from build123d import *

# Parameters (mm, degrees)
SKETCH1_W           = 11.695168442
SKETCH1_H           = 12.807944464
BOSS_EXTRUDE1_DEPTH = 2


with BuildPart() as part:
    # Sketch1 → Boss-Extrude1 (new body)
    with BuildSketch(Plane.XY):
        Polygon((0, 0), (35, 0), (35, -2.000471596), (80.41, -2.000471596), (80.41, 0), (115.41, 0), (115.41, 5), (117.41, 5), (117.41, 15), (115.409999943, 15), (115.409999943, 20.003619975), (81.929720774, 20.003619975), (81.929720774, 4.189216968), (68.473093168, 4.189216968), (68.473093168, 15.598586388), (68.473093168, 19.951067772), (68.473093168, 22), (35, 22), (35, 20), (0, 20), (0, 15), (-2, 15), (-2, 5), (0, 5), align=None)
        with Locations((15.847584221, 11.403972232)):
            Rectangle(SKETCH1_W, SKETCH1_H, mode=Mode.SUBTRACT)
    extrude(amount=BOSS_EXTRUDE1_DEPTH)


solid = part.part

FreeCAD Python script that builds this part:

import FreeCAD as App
import Part
import Sketcher
Q = App.Units.Quantity

doc = App.newDocument("Part")
params = doc.addObject("Spreadsheet::Sheet", "Params")
for row, (alias, value) in enumerate([
    ("sketch1_width", "35 mm"),
    ("sketch1_width2", "2 mm"),
    ("sketch1_height", "5 mm"),
    ("sketch1_height2", "10 mm"),
    ("sketch1_width3", "45.41 mm"),
    ("pad1_length", "2 mm"),
], start=1):
    params.set(f"A{row}", alias)
    params.set(f"B{row}", "=" + value)
    params.setAlias(f"B{row}", alias)

body = doc.addObject("PartDesign::Body", "Body")

sketch1 = body.newObject("Sketcher::SketchObject", "Sketch")
sketch1.AttachmentSupport = (doc.getObject("XY_Plane"), [""])
sketch1.MapMode = "FlatFace"
sketch1.addGeometry([
    Part.LineSegment(App.Vector(0, 0, 0), App.Vector(35, 0, 0)),
    Part.LineSegment(App.Vector(35, 0, 0), App.Vector(35, -2, 0)),
    Part.LineSegment(App.Vector(35, -2, 0), App.Vector(80.4, -2, 0)),
    Part.LineSegment(App.Vector(80.4, -2, 0), App.Vector(80.4, 0, 0)),
    Part.LineSegment(App.Vector(80.4, 0, 0), App.Vector(115.4, 0, 0)),
    Part.LineSegment(App.Vector(115.4, 0, 0), App.Vector(115.4, 5, 0)),
    Part.LineSegment(App.Vector(115.4, 5, 0), App.Vector(117.4, 5, 0)),
    Part.LineSegment(App.Vector(117.4, 5, 0), App.Vector(117.4, 15, 0)),
    Part.LineSegment(App.Vector(117.4, 15, 0), App.Vector(115.4, 15, 0)),
    Part.LineSegment(App.Vector(115.4, 15, 0), App.Vector(115.4, 20, 0)),
    Part.LineSegment(App.Vector(115.4, 20, 0), App.Vector(81.9, 20, 0)),
    Part.LineSegment(App.Vector(81.9, 20, 0), App.Vector(81.9, 4.2, 0)),
    Part.LineSegment(App.Vector(81.9, 4.2, 0), App.Vector(68.5, 4.2, 0)),
    Part.LineSegment(App.Vector(68.5, 4.2, 0), App.Vector(68.5, 22, 0)),
    Part.LineSegment(App.Vector(68.5, 22, 0), App.Vector(35, 22, 0)),
    Part.LineSegment(App.Vector(35, 22, 0), App.Vector(35, 20, 0)),
    Part.LineSegment(App.Vector(35, 20, 0), App.Vector(0, 20, 0)),
    Part.LineSegment(App.Vector(0, 20, 0), App.Vector(0, 15, 0)),
    Part.LineSegment(App.Vector(0, 15, 0), App.Vector(-2, 15, 0)),
    Part.LineSegment(App.Vector(-2, 15, 0), App.Vector(-2, 5, 0)),
    Part.LineSegment(App.Vector(-2, 5, 0), App.Vector(0, 5, 0)),
    Part.LineSegment(App.Vector(0, 5, 0), App.Vector(0, 0, 0)),
    Part.LineSegment(App.Vector(21.7, 5, 0), App.Vector(10, 5, 0)),
    Part.LineSegment(App.Vector(10, 5, 0), App.Vector(10, 17.8, 0)),
    Part.LineSegment(App.Vector(10, 17.8, 0), App.Vector(21.7, 17.8, 0)),
    Part.LineSegment(App.Vector(21.7, 17.8, 0), App.Vector(21.7, 5, 0)),
], False)
sketch1.addConstraint([
    Sketcher.Constraint("Coincident", 0, 2, 1, 1),
    Sketcher.Constraint("Coincident", 1, 2, 2, 1),
    Sketcher.Constraint("Coincident", 2, 2, 3, 1),
    Sketcher.Constraint("Coincident", 3, 2, 4, 1),
    Sketcher.Constraint("Coincident", 4, 2, 5, 1),
    Sketcher.Constraint("Coincident", 5, 2, 6, 1),
    Sketcher.Constraint("Coincident", 6, 2, 7, 1),
    Sketcher.Constraint("Coincident", 7, 2, 8, 1),
    Sketcher.Constraint("Coincident", 8, 2, 9, 1),
    Sketcher.Constraint("Coincident", 9, 2, 10, 1),
    Sketcher.Constraint("Coincident", 10, 2, 11, 1),
    Sketcher.Constraint("Coincident", 11, 2, 12, 1),
    Sketcher.Constraint("Coincident", 12, 2, 13, 1),
    Sketcher.Constraint("Coincident", 13, 2, 14, 1),
    Sketcher.Constraint("Coincident", 14, 2, 15, 1),
    Sketcher.Constraint("Coincident", 15, 2, 16, 1),
    Sketcher.Constraint("Coincident", 16, 2, 17, 1),
    Sketcher.Constraint("Coincident", 17, 2, 18, 1),
    Sketcher.Constraint("Coincident", 18, 2, 19, 1),
    Sketcher.Constraint("Coincident", 19, 2, 20, 1),
    Sketcher.Constraint("Coincident", 20, 2, 21, 1),
    Sketcher.Constraint("Coincident", 21, 2, 0, 1),
    Sketcher.Constraint("Coincident", 22, 2, 23, 1),
    Sketcher.Constraint("Coincident", 23, 2, 24, 1),
    Sketcher.Constraint("Coincident", 24, 2, 25, 1),
    Sketcher.Constraint("Coincident", 25, 2, 22, 1),
    Sketcher.Constraint("Horizontal", 0),
    Sketcher.Constraint("Vertical", 1),
    Sketcher.Constraint("Horizontal", 2),
    Sketcher.Constraint("Vertical", 3),
    Sketcher.Constraint("Horizontal", 4),
    Sketcher.Constraint("Vertical", 5),
    Sketcher.Constraint("Horizontal", 6),
    Sketcher.Constraint("Vertical", 7),
    Sketcher.Constraint("Horizontal", 8),
    Sketcher.Constraint("Vertical", 9),
    Sketcher.Constraint("Horizontal", 10),
    Sketcher.Constraint("Vertical", 11),
    Sketcher.Constraint("Horizontal", 12),
    Sketcher.Constraint("Vertical", 13),
    Sketcher.Constraint("Horizontal", 14),
    Sketcher.Constraint("Vertical", 15),
    Sketcher.Constraint("Horizontal", 16),
    Sketcher.Constraint("Vertical", 17),
    Sketcher.Constraint("Horizontal", 18),
    Sketcher.Constraint("Vertical", 19),
    Sketcher.Constraint("Horizontal", 20),
    Sketcher.Constraint("Vertical", 21),
    Sketcher.Constraint("Horizontal", 22),
    Sketcher.Constraint("Vertical", 23),
    Sketcher.Constraint("Horizontal", 24),
    Sketcher.Constraint("Vertical", 25),
    Sketcher.Constraint("Coincident", 21, 2, -1, 1),
    Sketcher.Constraint("PointOnObject", 3, 2, -1),
    Sketcher.Constraint("PointOnObject", 16, 2, -2),
    Sketcher.Constraint("Horizontal", 8, 2, 17, 2),
    Sketcher.Constraint("Horizontal", 6, 2, 19, 2),
    Sketcher.Constraint("Horizontal", 20, 2, 22, 2),
    Sketcher.Constraint("Vertical", 5, 2, 8, 2),
    Sketcher.Constraint("Vertical", 1, 2, 14, 2),
    Sketcher.Constraint("Equal", 0, 4),
    Sketcher.Constraint("Equal", 8, 18),
    Sketcher.Constraint("Equal", 20, 15),
    Sketcher.Constraint("Equal", 5, 17),
    Sketcher.Constraint("DistanceX", 0, 1, 0, 2, Q("35 mm")),
    Sketcher.Constraint("DistanceX", 6, 1, 6, 2, Q("2 mm")),
    Sketcher.Constraint("DistanceY", 5, 1, 5, 2, Q("5 mm")),
    Sketcher.Constraint("DistanceY", 7, 1, 7, 2, Q("10 mm")),
    Sketcher.Constraint("DistanceX", -1, 1, 22, 2, Q("10 mm")),
    Sketcher.Constraint("DistanceX", 2, 1, 2, 2, Q("45.41 mm")),
    Sketcher.Constraint("DistanceX", 10, 2, 10, 1, Q("33.480279 mm")),
    Sketcher.Constraint("DistanceX", 22, 2, 22, 1, Q("11.695168 mm")),
    Sketcher.Constraint("DistanceY", 1, 2, 1, 1, Q("2.000472 mm")),
    Sketcher.Constraint("DistanceY", 9, 1, 9, 2, Q("5.00362 mm")),
    Sketcher.Constraint("DistanceX", 12, 2, 12, 1, Q("13.456628 mm")),
    Sketcher.Constraint("DistanceY", 11, 2, 11, 1, Q("15.814403 mm")),
    Sketcher.Constraint("DistanceY", 23, 1, 23, 2, Q("12.807944 mm")),
])
sketch1.setExpression("Constraints[64]", "Params.sketch1_width")
sketch1.setExpression("Constraints[65]", "Params.sketch1_width2")
sketch1.setExpression("Constraints[66]", "Params.sketch1_height")
sketch1.setExpression("Constraints[67]", "Params.sketch1_height2")
sketch1.setExpression("Constraints[69]", "Params.sketch1_width3")
pad1 = body.newObject("PartDesign::Pad", "Pad")
pad1.Profile = sketch1
pad1.setExpression("Length", "Params.pad1_length")

doc.recompute()
